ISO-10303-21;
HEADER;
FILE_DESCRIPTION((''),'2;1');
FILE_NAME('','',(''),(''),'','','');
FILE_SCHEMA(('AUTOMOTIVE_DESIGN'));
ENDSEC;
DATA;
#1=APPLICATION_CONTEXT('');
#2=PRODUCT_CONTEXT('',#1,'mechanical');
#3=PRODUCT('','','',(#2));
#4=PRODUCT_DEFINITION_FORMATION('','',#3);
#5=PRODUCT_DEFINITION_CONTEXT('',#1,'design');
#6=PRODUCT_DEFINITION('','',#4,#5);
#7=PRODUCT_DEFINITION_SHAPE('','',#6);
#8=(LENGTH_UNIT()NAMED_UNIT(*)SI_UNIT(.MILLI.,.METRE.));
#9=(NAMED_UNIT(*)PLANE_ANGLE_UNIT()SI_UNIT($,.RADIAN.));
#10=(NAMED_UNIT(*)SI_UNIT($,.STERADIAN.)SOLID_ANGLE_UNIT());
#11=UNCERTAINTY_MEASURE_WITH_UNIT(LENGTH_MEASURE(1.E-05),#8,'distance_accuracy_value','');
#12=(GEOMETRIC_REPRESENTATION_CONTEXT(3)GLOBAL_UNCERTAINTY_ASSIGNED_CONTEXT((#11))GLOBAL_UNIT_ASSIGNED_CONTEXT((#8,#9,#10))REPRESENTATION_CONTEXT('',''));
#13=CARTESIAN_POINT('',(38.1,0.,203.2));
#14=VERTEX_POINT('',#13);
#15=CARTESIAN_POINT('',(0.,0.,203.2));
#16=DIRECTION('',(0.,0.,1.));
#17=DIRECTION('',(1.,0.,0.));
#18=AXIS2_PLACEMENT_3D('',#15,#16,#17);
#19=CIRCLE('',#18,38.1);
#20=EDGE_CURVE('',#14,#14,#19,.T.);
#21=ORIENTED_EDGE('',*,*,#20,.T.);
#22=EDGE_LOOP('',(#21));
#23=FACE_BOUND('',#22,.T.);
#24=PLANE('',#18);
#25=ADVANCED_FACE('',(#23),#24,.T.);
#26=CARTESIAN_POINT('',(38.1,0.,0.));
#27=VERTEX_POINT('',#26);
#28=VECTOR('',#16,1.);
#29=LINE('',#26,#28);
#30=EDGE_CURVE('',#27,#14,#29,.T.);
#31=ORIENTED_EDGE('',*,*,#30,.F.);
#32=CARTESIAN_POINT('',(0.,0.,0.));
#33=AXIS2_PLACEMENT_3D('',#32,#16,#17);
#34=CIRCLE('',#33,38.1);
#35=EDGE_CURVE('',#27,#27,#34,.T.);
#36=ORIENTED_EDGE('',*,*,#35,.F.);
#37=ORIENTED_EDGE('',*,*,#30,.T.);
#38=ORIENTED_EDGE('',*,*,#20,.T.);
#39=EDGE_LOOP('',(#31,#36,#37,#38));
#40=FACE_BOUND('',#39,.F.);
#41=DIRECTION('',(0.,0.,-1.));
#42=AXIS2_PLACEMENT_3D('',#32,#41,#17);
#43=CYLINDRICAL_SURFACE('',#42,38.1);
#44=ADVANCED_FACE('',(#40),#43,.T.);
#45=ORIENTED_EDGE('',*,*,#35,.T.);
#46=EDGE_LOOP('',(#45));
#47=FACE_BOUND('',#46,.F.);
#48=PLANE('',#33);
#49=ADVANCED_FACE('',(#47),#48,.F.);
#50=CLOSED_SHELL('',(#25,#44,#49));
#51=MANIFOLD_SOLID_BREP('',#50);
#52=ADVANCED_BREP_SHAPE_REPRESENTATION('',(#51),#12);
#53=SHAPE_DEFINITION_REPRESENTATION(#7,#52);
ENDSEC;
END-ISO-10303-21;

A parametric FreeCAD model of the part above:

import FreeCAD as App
import Part
import Sketcher

V = App.Vector
Q = App.Units.Quantity

doc = App.newDocument("Part")
params = doc.addObject("Spreadsheet::Sheet", "Params")
for row, (alias, value) in enumerate([
    ("sketch1_diameter", "3 in"),
    ("pad1_length", "8 in"),
], start=1):
    params.set(f"A{row}", alias)
    params.set(f"B{row}", "=" + value)
    params.setAlias(f"B{row}", alias)

body = doc.addObject("PartDesign::Body", "Body")

# Sketch on XY plane
sketch1 = body.newObject("Sketcher::SketchObject", "Sketch")
sketch1.AttachmentSupport = (doc.getObject("XY_Plane"), [""])
sketch1.MapMode = "FlatFace"
sketch1.addGeometry(Part.Circle(V(0, 0, 0), V(0, 0, 1), 38.1), False)
sketch1.addConstraint(Sketcher.Constraint("Coincident", 0, 3, -1, 1))
sketch1.addConstraint(Sketcher.Constraint("Diameter", 0, Q("3 in")))
sketch1.setExpression("Constraints[1]", "Params.sketch1_diameter")
pad1 = body.newObject("PartDesign::Pad", "Pad")
pad1.Profile = sketch1
pad1.setExpression("Length", "Params.pad1_length")

doc.recompute()
